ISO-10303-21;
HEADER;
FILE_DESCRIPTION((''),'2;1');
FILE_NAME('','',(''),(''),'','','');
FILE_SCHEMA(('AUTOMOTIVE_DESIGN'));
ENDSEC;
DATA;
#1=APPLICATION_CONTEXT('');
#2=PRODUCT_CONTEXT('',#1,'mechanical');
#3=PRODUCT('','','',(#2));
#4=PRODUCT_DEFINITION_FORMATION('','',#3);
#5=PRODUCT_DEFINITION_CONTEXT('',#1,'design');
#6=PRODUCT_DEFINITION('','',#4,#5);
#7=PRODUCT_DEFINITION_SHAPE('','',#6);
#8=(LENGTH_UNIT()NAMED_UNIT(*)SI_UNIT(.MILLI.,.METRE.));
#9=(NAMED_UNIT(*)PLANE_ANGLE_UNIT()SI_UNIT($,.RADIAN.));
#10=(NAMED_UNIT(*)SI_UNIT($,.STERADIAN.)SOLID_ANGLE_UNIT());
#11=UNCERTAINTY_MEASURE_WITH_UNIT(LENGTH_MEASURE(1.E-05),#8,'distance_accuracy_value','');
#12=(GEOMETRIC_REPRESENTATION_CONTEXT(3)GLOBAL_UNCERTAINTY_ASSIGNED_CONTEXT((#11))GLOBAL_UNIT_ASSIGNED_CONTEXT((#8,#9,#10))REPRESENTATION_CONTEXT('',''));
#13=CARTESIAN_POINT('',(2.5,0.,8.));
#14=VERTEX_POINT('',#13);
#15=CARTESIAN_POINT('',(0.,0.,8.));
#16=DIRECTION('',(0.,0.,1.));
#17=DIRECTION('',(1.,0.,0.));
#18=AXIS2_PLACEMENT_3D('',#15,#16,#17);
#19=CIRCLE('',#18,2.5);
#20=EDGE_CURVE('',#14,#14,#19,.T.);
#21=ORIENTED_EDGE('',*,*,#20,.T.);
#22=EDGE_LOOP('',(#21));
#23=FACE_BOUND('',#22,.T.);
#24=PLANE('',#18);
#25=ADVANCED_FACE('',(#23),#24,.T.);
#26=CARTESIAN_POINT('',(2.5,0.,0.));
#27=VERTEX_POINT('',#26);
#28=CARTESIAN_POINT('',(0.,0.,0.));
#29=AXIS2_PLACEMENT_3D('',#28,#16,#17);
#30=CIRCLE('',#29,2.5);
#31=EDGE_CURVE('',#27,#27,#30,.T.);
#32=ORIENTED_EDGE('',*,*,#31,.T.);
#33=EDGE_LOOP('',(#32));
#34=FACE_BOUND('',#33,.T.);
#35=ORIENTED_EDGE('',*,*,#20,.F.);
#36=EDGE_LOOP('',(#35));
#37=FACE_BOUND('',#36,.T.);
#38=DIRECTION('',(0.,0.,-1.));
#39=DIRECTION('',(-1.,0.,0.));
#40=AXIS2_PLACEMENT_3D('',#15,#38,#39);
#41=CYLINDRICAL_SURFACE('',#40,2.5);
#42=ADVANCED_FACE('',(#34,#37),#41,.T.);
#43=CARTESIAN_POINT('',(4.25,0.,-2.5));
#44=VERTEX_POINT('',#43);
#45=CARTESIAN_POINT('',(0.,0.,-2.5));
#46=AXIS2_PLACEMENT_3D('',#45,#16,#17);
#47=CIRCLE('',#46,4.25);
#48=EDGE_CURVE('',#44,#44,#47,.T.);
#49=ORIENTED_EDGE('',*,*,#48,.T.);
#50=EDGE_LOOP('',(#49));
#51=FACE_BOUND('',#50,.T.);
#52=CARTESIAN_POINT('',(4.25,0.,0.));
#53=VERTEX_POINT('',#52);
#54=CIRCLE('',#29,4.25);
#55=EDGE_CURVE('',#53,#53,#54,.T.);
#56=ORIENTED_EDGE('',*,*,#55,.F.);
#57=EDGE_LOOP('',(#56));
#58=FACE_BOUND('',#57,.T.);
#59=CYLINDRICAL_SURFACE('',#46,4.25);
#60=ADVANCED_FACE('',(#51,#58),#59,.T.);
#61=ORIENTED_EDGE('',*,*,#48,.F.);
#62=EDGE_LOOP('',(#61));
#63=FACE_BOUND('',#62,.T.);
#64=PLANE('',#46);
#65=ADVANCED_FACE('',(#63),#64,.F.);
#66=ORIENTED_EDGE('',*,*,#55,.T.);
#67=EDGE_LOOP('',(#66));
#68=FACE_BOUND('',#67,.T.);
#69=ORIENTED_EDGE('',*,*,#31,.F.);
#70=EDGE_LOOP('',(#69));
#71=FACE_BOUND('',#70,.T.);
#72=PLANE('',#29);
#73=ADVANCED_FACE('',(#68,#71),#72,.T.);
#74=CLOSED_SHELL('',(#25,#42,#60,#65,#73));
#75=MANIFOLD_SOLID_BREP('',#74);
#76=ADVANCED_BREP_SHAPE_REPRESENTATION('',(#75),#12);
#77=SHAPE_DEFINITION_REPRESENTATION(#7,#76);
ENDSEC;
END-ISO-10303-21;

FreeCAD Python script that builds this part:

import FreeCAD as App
import Part
import Sketcher
Q = App.Units.Quantity

doc = App.newDocument("Part")
body = doc.addObject("PartDesign::Body", "Body")

# Sketch on XY plane
sketch1 = body.newObject("Sketcher::SketchObject", "Sketch")
sketch1.AttachmentSupport = (doc.getObject("XY_Plane"), [""])
sketch1.MapMode = "FlatFace"
sketch1.addGeometry(Part.Circle(App.Vector(0, 0, 0), App.Vector(0, 0, 1), 4.2), False)
sketch1.addConstraint([
    Sketcher.Constraint("Coincident", 0, 3, -1, 1),
    Sketcher.Constraint("Diameter", 0, Q("8.5 mm")),
])
pad1 = body.newObject("PartDesign::Pad", "Pad")
pad1.Profile = sketch1
pad1.Length = 2.5
pad1.Reversed = True

# Sketch on XY plane
sketch2 = body.newObject("Sketcher::SketchObject", "Sketch001")
sketch2.AttachmentSupport = (doc.getObject("XY_Plane"), [""])
sketch2.MapMode = "FlatFace"
sketch2.addGeometry(Part.Circle(App.Vector(0, 0, 0), App.Vector(0, 0, 1), 2.5), False)
sketch2.addConstraint([
    Sketcher.Constraint("Coincident", 0, 3, -1, 1),
    Sketcher.Constraint("Diameter", 0, Q("5 mm")),
])
pad2 = body.newObject("PartDesign::Pad", "Pad001")
pad2.Profile = sketch2
pad2.Length = 8

doc.recompute()
